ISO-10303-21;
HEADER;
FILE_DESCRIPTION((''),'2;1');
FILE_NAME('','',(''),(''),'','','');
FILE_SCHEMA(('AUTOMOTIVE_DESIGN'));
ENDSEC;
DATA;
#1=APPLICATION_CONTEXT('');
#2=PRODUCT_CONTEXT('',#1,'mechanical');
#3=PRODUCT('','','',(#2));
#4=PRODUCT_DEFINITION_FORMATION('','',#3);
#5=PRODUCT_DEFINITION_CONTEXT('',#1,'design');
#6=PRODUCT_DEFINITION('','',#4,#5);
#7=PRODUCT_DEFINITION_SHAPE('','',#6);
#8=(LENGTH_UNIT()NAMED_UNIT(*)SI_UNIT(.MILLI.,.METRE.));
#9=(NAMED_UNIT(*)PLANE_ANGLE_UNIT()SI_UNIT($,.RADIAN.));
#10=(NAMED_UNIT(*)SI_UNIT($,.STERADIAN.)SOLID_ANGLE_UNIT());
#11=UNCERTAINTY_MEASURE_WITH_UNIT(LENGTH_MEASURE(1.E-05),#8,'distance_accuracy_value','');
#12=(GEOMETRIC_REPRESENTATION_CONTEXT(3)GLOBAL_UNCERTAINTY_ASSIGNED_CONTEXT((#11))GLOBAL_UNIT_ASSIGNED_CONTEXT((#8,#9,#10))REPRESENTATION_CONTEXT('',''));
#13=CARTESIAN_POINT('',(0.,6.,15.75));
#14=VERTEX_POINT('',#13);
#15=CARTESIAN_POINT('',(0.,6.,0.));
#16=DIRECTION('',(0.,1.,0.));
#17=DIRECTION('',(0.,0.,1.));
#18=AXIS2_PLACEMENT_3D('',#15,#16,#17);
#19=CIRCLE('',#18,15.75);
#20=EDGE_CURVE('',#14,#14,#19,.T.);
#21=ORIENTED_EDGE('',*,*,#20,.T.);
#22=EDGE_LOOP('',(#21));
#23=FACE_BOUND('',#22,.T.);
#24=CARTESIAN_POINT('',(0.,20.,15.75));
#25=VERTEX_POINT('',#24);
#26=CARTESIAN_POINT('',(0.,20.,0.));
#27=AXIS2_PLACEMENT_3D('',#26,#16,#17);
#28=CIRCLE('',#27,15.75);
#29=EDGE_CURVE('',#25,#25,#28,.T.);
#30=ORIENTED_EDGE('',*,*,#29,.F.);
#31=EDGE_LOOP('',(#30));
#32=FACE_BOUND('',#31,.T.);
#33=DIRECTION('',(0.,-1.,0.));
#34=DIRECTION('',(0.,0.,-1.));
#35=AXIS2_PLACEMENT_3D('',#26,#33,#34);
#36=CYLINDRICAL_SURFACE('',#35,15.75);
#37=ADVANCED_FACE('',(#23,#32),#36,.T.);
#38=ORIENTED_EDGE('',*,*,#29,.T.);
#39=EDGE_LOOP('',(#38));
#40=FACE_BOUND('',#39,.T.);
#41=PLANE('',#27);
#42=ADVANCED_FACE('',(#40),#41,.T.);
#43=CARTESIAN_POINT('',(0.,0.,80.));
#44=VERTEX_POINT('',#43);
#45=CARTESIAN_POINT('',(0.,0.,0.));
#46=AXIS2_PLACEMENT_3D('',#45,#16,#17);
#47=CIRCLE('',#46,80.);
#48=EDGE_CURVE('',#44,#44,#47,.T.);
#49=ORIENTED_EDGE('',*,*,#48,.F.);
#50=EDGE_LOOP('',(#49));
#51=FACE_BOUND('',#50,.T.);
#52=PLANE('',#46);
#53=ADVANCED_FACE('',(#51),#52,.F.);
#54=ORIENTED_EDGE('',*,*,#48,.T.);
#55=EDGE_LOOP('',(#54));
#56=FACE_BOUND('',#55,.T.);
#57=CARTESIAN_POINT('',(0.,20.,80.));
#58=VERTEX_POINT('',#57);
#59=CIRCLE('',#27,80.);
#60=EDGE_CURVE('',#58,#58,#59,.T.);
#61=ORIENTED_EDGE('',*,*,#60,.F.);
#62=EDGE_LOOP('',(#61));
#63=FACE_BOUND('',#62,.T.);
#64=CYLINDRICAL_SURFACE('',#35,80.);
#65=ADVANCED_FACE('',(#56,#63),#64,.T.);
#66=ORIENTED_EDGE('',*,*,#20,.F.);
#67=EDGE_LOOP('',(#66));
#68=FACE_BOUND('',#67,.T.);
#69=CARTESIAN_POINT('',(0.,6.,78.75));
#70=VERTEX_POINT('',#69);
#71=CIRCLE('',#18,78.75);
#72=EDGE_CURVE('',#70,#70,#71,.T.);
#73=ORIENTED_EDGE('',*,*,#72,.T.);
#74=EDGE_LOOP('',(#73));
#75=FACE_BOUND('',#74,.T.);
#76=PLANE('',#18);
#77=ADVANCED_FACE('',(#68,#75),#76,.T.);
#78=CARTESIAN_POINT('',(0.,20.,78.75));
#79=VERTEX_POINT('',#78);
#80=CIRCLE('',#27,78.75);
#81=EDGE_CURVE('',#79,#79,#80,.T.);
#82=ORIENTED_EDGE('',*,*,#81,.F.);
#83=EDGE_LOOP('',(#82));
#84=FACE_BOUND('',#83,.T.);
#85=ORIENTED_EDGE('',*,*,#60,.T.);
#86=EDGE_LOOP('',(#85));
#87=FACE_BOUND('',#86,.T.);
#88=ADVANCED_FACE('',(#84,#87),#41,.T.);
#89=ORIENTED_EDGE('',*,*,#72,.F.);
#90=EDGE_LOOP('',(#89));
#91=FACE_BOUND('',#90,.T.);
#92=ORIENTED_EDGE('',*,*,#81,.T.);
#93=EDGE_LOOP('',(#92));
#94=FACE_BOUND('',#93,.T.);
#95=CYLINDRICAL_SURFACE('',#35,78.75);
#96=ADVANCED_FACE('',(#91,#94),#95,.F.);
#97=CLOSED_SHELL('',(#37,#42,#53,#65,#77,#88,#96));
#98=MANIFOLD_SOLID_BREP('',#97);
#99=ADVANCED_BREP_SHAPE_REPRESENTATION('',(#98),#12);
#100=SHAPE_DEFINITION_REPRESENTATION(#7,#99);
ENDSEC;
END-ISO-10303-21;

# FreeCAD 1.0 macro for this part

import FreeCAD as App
import Part
import Sketcher
from FreeCAD import Vector

doc = App.newDocument("Part")
params = doc.addObject("Spreadsheet::Sheet", "Params")
for row, (alias, value) in enumerate([
    ("sketch1_diameter", "160 mm"),
    ("sketch1_diameter2", "157.5 mm"),
    ("pad1_length", "20 mm"),
    ("sketch2_diameter", "31.5 mm"),
    ("pad2_length", "20 mm"),
    ("sketch3_diameter", "157.5 mm"),
    ("sketch3_diameter2", "31.5 mm"),
    ("pad3_length", "6 mm"),
], start=1):
    params.set(f"A{row}", alias)
    params.set(f"B{row}", "=" + value)
    params.setAlias(f"B{row}", alias)

body = doc.addObject("PartDesign::Body", "Body")

# Sketch on XZ plane
sketch1 = body.newObject("Sketcher::SketchObject", "Sketch")
sketch1.AttachmentSupport = (doc.getObject("XZ_Plane"), [""])
sketch1.MapMode = "FlatFace"
sketch1.addGeometry(Part.Circle(Vector(0, 0, 0), Vector(0, 0, 1), 80), False)
sketch1.addGeometry(Part.Circle(Vector(0, 0, 0), Vector(0, 0, 1), 78.75), False)
sketch1.addConstraint(Sketcher.Constraint("Coincident", 0, 3, -1, 1))
sketch1.addConstraint(Sketcher.Constraint("Coincident", 1, 3, -1, 1))
sketch1.addConstraint(Sketcher.Constraint("Diameter", 0, 160.0))
sketch1.addConstraint(Sketcher.Constraint("Diameter", 1, 157.5))
sketch1.setExpression("Constraints[2]", "Params.sketch1_diameter")
sketch1.setExpression("Constraints[3]", "Params.sketch1_diameter2")
pad1 = body.newObject("PartDesign::Pad", "Pad")
pad1.Profile = sketch1
pad1.setExpression("Length", "Params.pad1_length")
pad1.Reversed = True
body2 = doc.addObject("PartDesign::Body", "Body001")

# Sketch on XZ plane
sketch2 = body2.newObject("Sketcher::SketchObject", "Sketch001")
sketch2.AttachmentSupport = (doc.getObject("XZ_Plane001"), [""])
sketch2.MapMode = "FlatFace"
sketch2.addGeometry(Part.Circle(Vector(0, 0, 0), Vector(0, 0, 1), 15.75), False)
sketch2.addConstraint(Sketcher.Constraint("Coincident", 0, 3, -1, 1))
sketch2.addConstraint(Sketcher.Constraint("Diameter", 0, 31.5))
sketch2.setExpression("Constraints[1]", "Params.sketch2_diameter")
pad2 = body2.newObject("PartDesign::Pad", "Pad001")
pad2.Profile = sketch2
pad2.setExpression("Length", "Params.pad2_length")
pad2.Reversed = True
body.AllowCompound = True
doc.recompute()

boolean = body.newObject("PartDesign::Boolean", "Boolean")
boolean.Type = "Fuse"
boolean.addObjects([body2])

# Sketch on XZ plane
sketch3 = body.newObject("Sketcher::SketchObject", "Sketch002")
sketch3.AttachmentSupport = (doc.getObject("XZ_Plane"), [""])
sketch3.MapMode = "FlatFace"
sketch3.addGeometry(Part.Circle(Vector(0, 0, 0), Vector(0, 0, 1), 78.75), False)
sketch3.addGeometry(Part.Circle(Vector(0, 0, 0), Vector(0, 0, 1), 15.75), False)
sketch3.addConstraint(Sketcher.Constraint("Coincident", 0, 3, -1, 1))
sketch3.addConstraint(Sketcher.Constraint("Coincident", 1, 3, -1, 1))
sketch3.addConstraint(Sketcher.Constraint("Diameter", 0, 157.5))
sketch3.addConstraint(Sketcher.Constraint("Diameter", 1, 31.5))
sketch3.setExpression("Constraints[2]", "Params.sketch3_diameter")
sketch3.setExpression("Constraints[3]", "Params.sketch3_diameter2")
pad3 = body.newObject("PartDesign::Pad", "Pad002")
pad3.Profile = sketch3
pad3.setExpression("Length", "Params.pad3_length")
pad3.Reversed = True

doc.recompute()
